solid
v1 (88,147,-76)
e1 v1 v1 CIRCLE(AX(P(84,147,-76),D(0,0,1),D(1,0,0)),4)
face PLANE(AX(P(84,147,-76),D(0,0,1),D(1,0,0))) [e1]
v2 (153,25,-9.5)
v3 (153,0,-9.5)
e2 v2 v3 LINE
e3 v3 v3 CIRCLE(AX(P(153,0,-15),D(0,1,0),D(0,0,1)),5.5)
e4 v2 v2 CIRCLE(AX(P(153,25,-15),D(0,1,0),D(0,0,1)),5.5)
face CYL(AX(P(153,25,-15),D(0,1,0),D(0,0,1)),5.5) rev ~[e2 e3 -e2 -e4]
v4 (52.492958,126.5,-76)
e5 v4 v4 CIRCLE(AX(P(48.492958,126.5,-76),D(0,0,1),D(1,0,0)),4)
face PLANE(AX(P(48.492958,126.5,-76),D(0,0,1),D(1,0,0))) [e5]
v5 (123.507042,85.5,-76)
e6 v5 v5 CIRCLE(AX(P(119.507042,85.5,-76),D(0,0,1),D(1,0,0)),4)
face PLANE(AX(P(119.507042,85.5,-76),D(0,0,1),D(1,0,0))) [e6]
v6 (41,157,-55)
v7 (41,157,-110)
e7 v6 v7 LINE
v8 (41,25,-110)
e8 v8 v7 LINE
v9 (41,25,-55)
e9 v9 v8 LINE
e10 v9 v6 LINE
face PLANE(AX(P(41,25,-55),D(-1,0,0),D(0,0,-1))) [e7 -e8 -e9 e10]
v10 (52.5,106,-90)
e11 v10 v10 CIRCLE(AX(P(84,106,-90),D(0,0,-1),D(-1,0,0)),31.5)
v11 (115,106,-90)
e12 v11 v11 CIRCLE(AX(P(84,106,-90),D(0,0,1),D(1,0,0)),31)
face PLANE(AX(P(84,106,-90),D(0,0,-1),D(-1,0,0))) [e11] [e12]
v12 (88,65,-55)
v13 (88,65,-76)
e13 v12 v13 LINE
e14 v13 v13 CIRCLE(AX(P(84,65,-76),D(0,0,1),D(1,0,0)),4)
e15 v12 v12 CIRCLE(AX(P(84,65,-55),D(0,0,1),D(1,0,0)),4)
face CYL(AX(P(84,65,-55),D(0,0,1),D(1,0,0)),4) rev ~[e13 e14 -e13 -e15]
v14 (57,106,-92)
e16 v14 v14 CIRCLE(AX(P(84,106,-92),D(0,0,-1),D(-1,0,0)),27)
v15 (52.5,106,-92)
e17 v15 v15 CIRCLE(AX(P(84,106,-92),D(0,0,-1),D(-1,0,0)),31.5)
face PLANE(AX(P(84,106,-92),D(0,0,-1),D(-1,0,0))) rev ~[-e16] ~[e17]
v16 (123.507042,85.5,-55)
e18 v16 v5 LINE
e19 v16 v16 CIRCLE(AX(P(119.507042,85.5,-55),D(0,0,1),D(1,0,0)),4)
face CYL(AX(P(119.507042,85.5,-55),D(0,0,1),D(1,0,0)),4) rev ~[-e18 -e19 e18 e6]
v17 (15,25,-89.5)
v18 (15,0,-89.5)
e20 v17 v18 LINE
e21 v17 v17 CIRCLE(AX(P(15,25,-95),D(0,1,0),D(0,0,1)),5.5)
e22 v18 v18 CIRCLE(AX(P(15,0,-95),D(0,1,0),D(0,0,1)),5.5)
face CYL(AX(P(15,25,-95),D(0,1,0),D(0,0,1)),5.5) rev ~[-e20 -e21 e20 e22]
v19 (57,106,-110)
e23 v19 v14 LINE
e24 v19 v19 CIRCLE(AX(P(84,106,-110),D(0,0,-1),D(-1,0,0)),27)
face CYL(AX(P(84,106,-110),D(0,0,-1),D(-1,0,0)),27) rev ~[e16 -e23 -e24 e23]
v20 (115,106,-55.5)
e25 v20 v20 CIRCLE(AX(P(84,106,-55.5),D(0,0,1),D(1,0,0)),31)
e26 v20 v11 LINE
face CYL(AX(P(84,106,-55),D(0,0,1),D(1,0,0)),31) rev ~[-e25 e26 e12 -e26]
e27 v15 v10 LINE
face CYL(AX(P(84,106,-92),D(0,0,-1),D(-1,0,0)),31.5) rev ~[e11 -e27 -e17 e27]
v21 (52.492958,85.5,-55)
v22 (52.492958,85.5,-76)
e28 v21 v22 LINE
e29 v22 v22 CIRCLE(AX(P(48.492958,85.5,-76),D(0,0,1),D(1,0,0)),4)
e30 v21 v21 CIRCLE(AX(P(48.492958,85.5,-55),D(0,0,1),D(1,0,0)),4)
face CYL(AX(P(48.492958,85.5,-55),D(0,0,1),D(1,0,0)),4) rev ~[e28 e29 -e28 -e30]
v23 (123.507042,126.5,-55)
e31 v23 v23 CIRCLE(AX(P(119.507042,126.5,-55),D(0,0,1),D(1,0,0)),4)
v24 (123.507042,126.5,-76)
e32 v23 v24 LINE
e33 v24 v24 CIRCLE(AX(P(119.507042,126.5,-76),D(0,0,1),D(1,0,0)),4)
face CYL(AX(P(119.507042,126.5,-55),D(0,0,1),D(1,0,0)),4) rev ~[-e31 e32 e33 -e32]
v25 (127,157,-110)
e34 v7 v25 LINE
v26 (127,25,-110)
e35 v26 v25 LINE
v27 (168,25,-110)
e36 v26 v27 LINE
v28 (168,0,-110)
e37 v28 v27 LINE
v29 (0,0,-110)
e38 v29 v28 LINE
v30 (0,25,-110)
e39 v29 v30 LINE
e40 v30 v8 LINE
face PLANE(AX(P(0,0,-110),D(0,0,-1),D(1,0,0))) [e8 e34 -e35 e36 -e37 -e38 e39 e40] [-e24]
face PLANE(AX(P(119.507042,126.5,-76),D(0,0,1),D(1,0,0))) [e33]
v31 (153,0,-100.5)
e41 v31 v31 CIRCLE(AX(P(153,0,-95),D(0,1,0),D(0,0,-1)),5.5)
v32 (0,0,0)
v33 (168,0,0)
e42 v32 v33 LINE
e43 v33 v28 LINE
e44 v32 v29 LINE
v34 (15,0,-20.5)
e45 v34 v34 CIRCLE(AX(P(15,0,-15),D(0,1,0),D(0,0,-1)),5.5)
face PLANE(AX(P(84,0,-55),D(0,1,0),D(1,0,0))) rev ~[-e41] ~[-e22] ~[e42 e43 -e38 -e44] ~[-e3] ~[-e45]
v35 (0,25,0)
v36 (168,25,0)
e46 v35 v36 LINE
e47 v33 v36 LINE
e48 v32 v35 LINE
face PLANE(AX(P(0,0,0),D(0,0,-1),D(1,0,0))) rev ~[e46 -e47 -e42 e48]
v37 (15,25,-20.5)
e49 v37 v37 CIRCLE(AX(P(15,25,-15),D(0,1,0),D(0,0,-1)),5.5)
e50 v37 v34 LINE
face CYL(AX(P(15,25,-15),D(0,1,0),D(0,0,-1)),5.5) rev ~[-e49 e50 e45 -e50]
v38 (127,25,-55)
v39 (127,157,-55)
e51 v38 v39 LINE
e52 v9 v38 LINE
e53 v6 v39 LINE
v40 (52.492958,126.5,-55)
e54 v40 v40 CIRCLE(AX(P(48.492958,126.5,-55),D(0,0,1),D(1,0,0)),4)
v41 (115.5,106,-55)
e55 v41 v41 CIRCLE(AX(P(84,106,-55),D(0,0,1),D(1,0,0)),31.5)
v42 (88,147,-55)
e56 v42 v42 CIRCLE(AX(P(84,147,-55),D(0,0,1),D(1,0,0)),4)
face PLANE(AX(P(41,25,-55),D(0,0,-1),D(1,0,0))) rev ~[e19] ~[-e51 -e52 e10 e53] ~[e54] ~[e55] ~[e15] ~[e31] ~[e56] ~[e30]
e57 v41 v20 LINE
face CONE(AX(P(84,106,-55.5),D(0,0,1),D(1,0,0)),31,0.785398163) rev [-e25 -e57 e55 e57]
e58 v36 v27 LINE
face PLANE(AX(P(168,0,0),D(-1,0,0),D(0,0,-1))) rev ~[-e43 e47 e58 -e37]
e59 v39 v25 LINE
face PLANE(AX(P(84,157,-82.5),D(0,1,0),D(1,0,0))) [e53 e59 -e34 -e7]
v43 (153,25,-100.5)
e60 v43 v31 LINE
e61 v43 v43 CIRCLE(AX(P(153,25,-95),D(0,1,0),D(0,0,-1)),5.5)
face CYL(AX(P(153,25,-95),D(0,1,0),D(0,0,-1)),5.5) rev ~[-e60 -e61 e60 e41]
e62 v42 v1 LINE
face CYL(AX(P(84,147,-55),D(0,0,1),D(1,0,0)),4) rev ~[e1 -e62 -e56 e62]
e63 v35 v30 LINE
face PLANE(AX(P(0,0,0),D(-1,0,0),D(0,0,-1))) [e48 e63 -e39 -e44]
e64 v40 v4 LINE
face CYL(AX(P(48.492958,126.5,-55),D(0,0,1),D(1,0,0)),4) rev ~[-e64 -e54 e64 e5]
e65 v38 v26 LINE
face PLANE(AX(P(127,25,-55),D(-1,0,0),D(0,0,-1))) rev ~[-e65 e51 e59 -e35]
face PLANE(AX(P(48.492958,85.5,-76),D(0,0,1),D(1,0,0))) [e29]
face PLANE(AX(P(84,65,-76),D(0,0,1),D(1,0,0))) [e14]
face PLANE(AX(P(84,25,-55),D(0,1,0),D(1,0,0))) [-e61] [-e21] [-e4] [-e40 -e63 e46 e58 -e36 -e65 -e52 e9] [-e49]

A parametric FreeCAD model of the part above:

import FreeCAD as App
import Part
import Sketcher
from FreeCAD import Vector


def edges_at(feature, points):
    """Names of the edges that pass closest to the given points."""
    edges = feature.Shape.Edges
    near = lambda p: min(range(len(edges)), key=lambda i: edges[i].distToShape(Part.Vertex(*p))[0])
    return sorted({f"Edge{near(p) + 1}" for p in points})

doc = App.newDocument("Part")
params = doc.addObject("Spreadsheet::Sheet", "Params")
for row, (alias, value) in enumerate([
    ("sketch1_width", "168 mm"),
    ("sketch1_height", "110 mm"),
    ("pad1_length", "25 mm"),
    ("sketch2_diameter", "11 mm"),
    ("sketch3_width", "86 mm"),
    ("sketch3_height", "55 mm"),
    ("pad2_length", "132 mm"),
    ("sketch4_diameter", "62 mm"),
    ("pocket2_length", "35 mm"),
    ("chamfer_size", "0.5 mm"),
    ("sketch5_diameter", "54 mm"),
    ("pocket3_length", "18 mm"),
    ("sketch6_diameter", "63 mm"),
    ("pocket4_length", "2 mm"),
    ("sketch7_diameter", "8 mm"),
    ("pocket5_length", "21 mm"),
], start=1):
    params.set(f"A{row}", alias)
    params.set(f"B{row}", "=" + value)
    params.setAlias(f"B{row}", alias)

body = doc.addObject("PartDesign::Body", "Body")

sketch1 = body.newObject("Sketcher::SketchObject", "Sketch")
sketch1.AttachmentSupport = (doc.getObject("XZ_Plane"), [""])
sketch1.MapMode = "FlatFace"
sketch1.addGeometry([
    Part.LineSegment(Vector(0, -110, 0), Vector(0, 0, 0)),
    Part.LineSegment(Vector(0, 0, 0), Vector(168, 0, 0)),
    Part.LineSegment(Vector(168, 0, 0), Vector(168, -110, 0)),
    Part.LineSegment(Vector(168, -110, 0), Vector(0, -110, 0)),
], False)
sketch1.addConstraint([
    Sketcher.Constraint("Coincident", 0, 2, 1, 1),
    Sketcher.Constraint("Coincident", 1, 2, 2, 1),
    Sketcher.Constraint("Coincident", 2, 2, 3, 1),
    Sketcher.Constraint("Coincident", 3, 2, 0, 1),
    Sketcher.Constraint("Vertical", 0),
    Sketcher.Constraint("Horizontal", 1),
    Sketcher.Constraint("Vertical", 2),
    Sketcher.Constraint("Horizontal", 3),
    Sketcher.Constraint("Coincident", 0, 2, -1, 1),
    Sketcher.Constraint("DistanceX", 1, 1, 1, 2, 168.0),
    Sketcher.Constraint("DistanceY", 0, 1, 0, 2, 110.0),
])
sketch1.setExpression("Constraints[9]", "Params.sketch1_width")
sketch1.setExpression("Constraints[10]", "Params.sketch1_height")
pad1 = body.newObject("PartDesign::Pad", "Pad")
pad1.Profile = sketch1
pad1.setExpression("Length", "Params.pad1_length")
pad1.Reversed = True

sketch2 = body.newObject("Sketcher::SketchObject", "Sketch001")
sketch2.AttachmentSupport = (doc.getObject("XZ_Plane"), [""])
sketch2.MapMode = "FlatFace"
sketch2.AttachmentOffset = App.Placement(Vector(0, 0, -25), App.Rotation())
sketch2.addGeometry([
    Part.Circle(Vector(15, -95, 0), Vector(0, 0, 1), 6),
    Part.Circle(Vector(153, -95, 0), Vector(0, 0, 1), 6),
    Part.Circle(Vector(153, -15, 0), Vector(0, 0, 1), 6),
    Part.Circle(Vector(15, -15, 0), Vector(0, 0, 1), 6),
], False)
sketch2.addConstraint([
    Sketcher.Constraint("Equal", 0, 1),
    Sketcher.Constraint("Equal", 1, 2),
    Sketcher.Constraint("Equal", 2, 3),
    Sketcher.Constraint("Horizontal", 0, 3, 1, 3),
    Sketcher.Constraint("Horizontal", 2, 3, 3, 3),
    Sketcher.Constraint("Vertical", 1, 3, 2, 3),
    Sketcher.Constraint("Vertical", 0, 3, 3, 3),
    Sketcher.Constraint("Diameter", 0, 11.0),
    Sketcher.Constraint("DistanceX", -1, 1, 0, 3, 15.0),
    Sketcher.Constraint("DistanceY", 0, 3, -1, 1, 95.0),
    Sketcher.Constraint("DistanceX", -1, 1, 1, 3, 153.0),
    Sketcher.Constraint("DistanceY", 2, 3, -1, 1, 15.0),
])
sketch2.setExpression("Constraints[7]", "Params.sketch2_diameter")
pocket1 = body.newObject("PartDesign::Pocket", "Pocket")
pocket1.Profile = sketch2
pocket1.Type = "ThroughAll"
pocket1.Reversed = True

sketch3 = body.newObject("Sketcher::SketchObject", "Sketch002")
sketch3.AttachmentSupport = (doc.getObject("XZ_Plane"), [""])
sketch3.MapMode = "FlatFace"
sketch3.AttachmentOffset = App.Placement(Vector(0, 0, -25), App.Rotation())
sketch3.addGeometry([
    Part.LineSegment(Vector(41, -110, 0), Vector(41, -55, 0)),
    Part.LineSegment(Vector(41, -55, 0), Vector(127, -55, 0)),
    Part.LineSegment(Vector(127, -55, 0), Vector(127, -110, 0)),
    Part.LineSegment(Vector(127, -110, 0), Vector(41, -110, 0)),
], False)
sketch3.addConstraint([
    Sketcher.Constraint("Coincident", 0, 2, 1, 1),
    Sketcher.Constraint("Coincident", 1, 2, 2, 1),
    Sketcher.Constraint("Coincident", 2, 2, 3, 1),
    Sketcher.Constraint("Coincident", 3, 2, 0, 1),
    Sketcher.Constraint("Vertical", 0),
    Sketcher.Constraint("Horizontal", 1),
    Sketcher.Constraint("Vertical", 2),
    Sketcher.Constraint("Horizontal", 3),
    Sketcher.Constraint("DistanceX", 1, 1, 1, 2, 86.0),
    Sketcher.Constraint("DistanceY", 0, 1, 0, 2, 55.0),
    Sketcher.Constraint("DistanceX", -1, 1, 0, 2, 41.0),
    Sketcher.Constraint("DistanceY", 0, 2, -1, 1, 55.0),
])
sketch3.setExpression("Constraints[8]", "Params.sketch3_width")
sketch3.setExpression("Constraints[9]", "Params.sketch3_height")
pad2 = body.newObject("PartDesign::Pad", "Pad001")
pad2.Profile = sketch3
pad2.setExpression("Length", "Params.pad2_length")
pad2.Reversed = True

sketch4 = body.newObject("Sketcher::SketchObject", "Sketch003")
sketch4.AttachmentSupport = (doc.getObject("XY_Plane"), [""])
sketch4.MapMode = "FlatFace"
sketch4.AttachmentOffset = App.Placement(Vector(0, 0, -55), App.Rotation())
sketch4.addGeometry(Part.Circle(Vector(84, 106, 0), Vector(0, 0, 1), 31), False)
sketch4.addConstraint([
    Sketcher.Constraint("Diameter", 0, 62.0),
    Sketcher.Constraint("DistanceX", -1, 1, 0, 3, 84.0),
    Sketcher.Constraint("DistanceY", -1, 1, 0, 3, 106.0),
])
sketch4.setExpression("Constraints[0]", "Params.sketch4_diameter")
pocket2 = body.newObject("PartDesign::Pocket", "Pocket001")
pocket2.Profile = sketch4
pocket2.setExpression("Length", "Params.pocket2_length")
doc.recompute()

chamfer = body.newObject("PartDesign::Chamfer", "Chamfer")
chamfer.Base = (pocket2, edges_at(pocket2, [(53, 106, -55)]))
chamfer.setExpression("Size", "Params.chamfer_size")

sketch5 = body.newObject("Sketcher::SketchObject", "Sketch004")
sketch5.AttachmentSupport = (doc.getObject("XY_Plane"), [""])
sketch5.MapMode = "FlatFace"
sketch5.AttachmentOffset = App.Placement(Vector(0, 0, -110), App.Rotation())
sketch5.addGeometry(Part.Circle(Vector(84, 106, 0), Vector(0, 0, 1), 27), False)
sketch5.addConstraint([
    Sketcher.Constraint("Diameter", 0, 54.0),
    Sketcher.Constraint("DistanceX", -1, 1, 0, 3, 84.0),
    Sketcher.Constraint("DistanceY", -1, 1, 0, 3, 106.0),
])
sketch5.setExpression("Constraints[0]", "Params.sketch5_diameter")
pocket3 = body.newObject("PartDesign::Pocket", "Pocket002")
pocket3.Profile = sketch5
pocket3.setExpression("Length", "Params.pocket3_length")
pocket3.Reversed = True

sketch6 = body.newObject("Sketcher::SketchObject", "Sketch005")
sketch6.AttachmentSupport = (doc.getObject("XY_Plane"), [""])
sketch6.MapMode = "FlatFace"
sketch6.AttachmentOffset = App.Placement(Vector(0, 0, -92), App.Rotation())
sketch6.addGeometry(Part.Circle(Vector(84, 106, 0), Vector(0, 0, 1), 32), False)
sketch6.addConstraint([
    Sketcher.Constraint("Diameter", 0, 63.0),
    Sketcher.Constraint("DistanceX", -1, 1, 0, 3, 84.0),
    Sketcher.Constraint("DistanceY", -1, 1, 0, 3, 106.0),
])
sketch6.setExpression("Constraints[0]", "Params.sketch6_diameter")
pocket4 = body.newObject("PartDesign::Pocket", "Pocket003")
pocket4.Profile = sketch6
pocket4.setExpression("Length", "Params.pocket4_length")
pocket4.Reversed = True

sketch7 = body.newObject("Sketcher::SketchObject", "Sketch006")
sketch7.AttachmentSupport = (doc.getObject("XY_Plane"), [""])
sketch7.MapMode = "FlatFace"
sketch7.AttachmentOffset = App.Placement(Vector(0, 0, -55), App.Rotation())
sketch7.addGeometry([
    Part.Circle(Vector(84, 147, 0), Vector(0, 0, 1), 4),
    Part.Circle(Vector(119.5, 126.5, 0), Vector(0, 0, 1), 4),
    Part.Circle(Vector(119.5, 85.5, 0), Vector(0, 0, 1), 4),
    Part.Circle(Vector(84, 65, 0), Vector(0, 0, 1), 4),
    Part.Circle(Vector(48.5, 85.5, 0), Vector(0, 0, 1), 4),
    Part.Circle(Vector(48.5, 126.5, 0), Vector(0, 0, 1), 4),
], False)
sketch7.addConstraint([
    Sketcher.Constraint("Equal", 0, 1),
    Sketcher.Constraint("Equal", 1, 2),
    Sketcher.Constraint("Equal", 2, 3),
    Sketcher.Constraint("Equal", 3, 4),
    Sketcher.Constraint("Equal", 4, 5),
    Sketcher.Constraint("Horizontal", 2, 3, 4, 3),
    Sketcher.Constraint("Horizontal", 1, 3, 5, 3),
    Sketcher.Constraint("Vertical", 1, 3, 2, 3),
    Sketcher.Constraint("Vertical", 0, 3, 3, 3),
    Sketcher.Constraint("Vertical", 4, 3, 5, 3),
    Sketcher.Constraint("Diameter", 0, 8.0),
    Sketcher.Constraint("DistanceX", -1, 1, 0, 3, 84.0),
    Sketcher.Constraint("DistanceY", -1, 1, 0, 3, 147.0),
    Sketcher.Constraint("DistanceY", -1, 1, 3, 3, 65.0),
    Sketcher.Constraint("DistanceY", 2, 3, 1, 3, 41.0),
    Sketcher.Constraint("DistanceY", -1, 1, 1, 3, 126.5),
    Sketcher.Constraint("DistanceX", -1, 1, 1, 3, 119.507042),
    Sketcher.Constraint("DistanceX", -1, 1, 4, 3, 48.492958),
])
sketch7.setExpression("Constraints[10]", "Params.sketch7_diameter")
pocket5 = body.newObject("PartDesign::Pocket", "Pocket004")
pocket5.Profile = sketch7
pocket5.setExpression("Length", "Params.pocket5_length")

doc.recompute()
